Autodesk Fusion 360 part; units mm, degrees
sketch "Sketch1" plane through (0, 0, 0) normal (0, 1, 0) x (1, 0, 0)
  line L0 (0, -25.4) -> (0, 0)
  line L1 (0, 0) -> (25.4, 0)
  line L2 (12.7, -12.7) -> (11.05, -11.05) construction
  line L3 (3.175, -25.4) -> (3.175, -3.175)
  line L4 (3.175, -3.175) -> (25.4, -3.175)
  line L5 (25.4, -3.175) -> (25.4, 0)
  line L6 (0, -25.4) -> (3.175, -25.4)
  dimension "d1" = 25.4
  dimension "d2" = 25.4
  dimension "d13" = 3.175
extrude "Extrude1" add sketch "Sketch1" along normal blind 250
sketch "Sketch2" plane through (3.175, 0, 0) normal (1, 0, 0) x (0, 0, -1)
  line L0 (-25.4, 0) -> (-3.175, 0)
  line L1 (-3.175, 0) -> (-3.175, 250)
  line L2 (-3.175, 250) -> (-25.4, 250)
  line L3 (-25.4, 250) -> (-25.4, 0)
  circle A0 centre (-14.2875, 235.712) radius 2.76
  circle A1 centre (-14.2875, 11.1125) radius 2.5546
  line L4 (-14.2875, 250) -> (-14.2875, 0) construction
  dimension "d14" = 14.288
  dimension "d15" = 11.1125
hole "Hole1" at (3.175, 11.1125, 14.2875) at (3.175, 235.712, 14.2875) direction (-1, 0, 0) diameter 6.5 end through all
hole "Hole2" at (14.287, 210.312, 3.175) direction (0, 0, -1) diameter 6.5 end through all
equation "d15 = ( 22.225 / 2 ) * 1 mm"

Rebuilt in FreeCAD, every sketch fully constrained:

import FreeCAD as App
import Part
import Sketcher

V = App.Vector
Q = App.Units.Quantity


def add_polygon(sketch, points):
    """Adds a closed chain of lines whose ends are joined by coincident constraints."""
    first, n = sketch.GeometryCount, len(points)
    for a, b in zip(points, points[1:] + points[:1]):
        sketch.addGeometry(Part.LineSegment(App.Vector(*a, 0), App.Vector(*b, 0)), False)
    for i in range(n):
        sketch.addConstraint(Sketcher.Constraint("Coincident", first + i, 2, first + (i + 1) % n, 1))

doc = App.newDocument("Part")
params = doc.addObject("Spreadsheet::Sheet", "Params")
for row, (alias, value) in enumerate([
    ("sketch1_width", "1 in"),
    ("sketch1_width2", "0.125 in"),
    ("pad1_length", "250 mm"),
    ("hole_diameter", "0.2559055 in"),
    ("hole2_diameter", "0.2559055 in"),
], start=1):
    params.set(f"A{row}", alias)
    params.set(f"B{row}", "=" + value)
    params.setAlias(f"B{row}", alias)

body = doc.addObject("PartDesign::Body", "Body")

# Sketch on XZ plane
sketch1 = doc.addObject("Sketcher::SketchObject", "Sketch")
body.addObject(sketch1)
sketch1.AttachmentSupport = (doc.XZ_Plane, [""])
sketch1.MapMode = "FlatFace"
add_polygon(sketch1, [(0, 0), (0, 25.4), (3.175, 25.4), (3.175, 3.175), (25.4, 3.175), (25.4, 0)])  # lines 0-5
sketch1.addConstraint(Sketcher.Constraint("Vertical", 0))
sketch1.addConstraint(Sketcher.Constraint("Horizontal", 1))
sketch1.addConstraint(Sketcher.Constraint("Vertical", 2))
sketch1.addConstraint(Sketcher.Constraint("Horizontal", 3))
sketch1.addConstraint(Sketcher.Constraint("Vertical", 4))
sketch1.addConstraint(Sketcher.Constraint("Horizontal", 5))
sketch1.addConstraint(Sketcher.Constraint("Coincident", 5, 2, -1, 1))
sketch1.addConstraint(Sketcher.Constraint("Equal", 5, 0))
sketch1.addConstraint(Sketcher.Constraint("Equal", 3, 2))
sketch1.addConstraint(Sketcher.Constraint("DistanceX", 5, 2, 5, 1, Q("1 in")))
sketch1.addConstraint(Sketcher.Constraint("DistanceX", 1, 1, 1, 2, Q("0.125 in")))
sketch1.setExpression("Constraints[15]", "Params.sketch1_width")
sketch1.setExpression("Constraints[16]", "Params.sketch1_width2")
pad1 = doc.addObject("PartDesign::Pad", "Pad")
body.addObject(pad1)
pad1.Profile = sketch1
pad1.setExpression("Length", "Params.pad1_length")
pad1.Reversed = True

# Sketch on YZ plane
sketch2 = doc.addObject("Sketcher::SketchObject", "Sketch001")
body.addObject(sketch2)
sketch2.AttachmentSupport = (doc.YZ_Plane, [""])
sketch2.MapMode = "FlatFace"
sketch2.AttachmentOffset = App.Placement(V(0, 0, 0.125 * 25.4), App.Rotation())
sketch2.addGeometry(Part.Circle(V(11.1125, 14.2875, 0), V(0, 0, 1), 3.25), False)
sketch2.addGeometry(Part.Circle(V(235.712, 14.2875, 0), V(0, 0, 1), 3.25), False)
sketch2.addConstraint(Sketcher.Constraint("Equal", 0, 1))
sketch2.addConstraint(Sketcher.Constraint("Horizontal", 0, 3, 1, 3))
sketch2.addConstraint(Sketcher.Constraint("Diameter", 0, Q("0.2559 in")))
sketch2.addConstraint(Sketcher.Constraint("DistanceX", -1, 1, 1, 3, Q("9.28 in")))
sketch2.addConstraint(Sketcher.Constraint("DistanceX", -1, 1, 0, 3, Q("0.4375 in")))
sketch2.addConstraint(Sketcher.Constraint("DistanceY", -1, 1, 0, 3, Q("0.5625 in")))
doc.recompute()
hole = doc.addObject("PartDesign::Hole", "Hole")
body.addObject(hole)
hole.Profile = sketch2
hole.ThreadType = "None"
hole.setExpression("Diameter", "Params.hole_diameter")
hole.DepthType = "ThroughAll"

# Sketch on XY plane
sketch3 = doc.addObject("Sketcher::SketchObject", "Sketch002")
body.addObject(sketch3)
sketch3.AttachmentSupport = (doc.XY_Plane, [""])
sketch3.MapMode = "FlatFace"
sketch3.AttachmentOffset = App.Placement(V(0, 0, 0.125 * 25.4), App.Rotation())
sketch3.addGeometry(Part.Circle(V(14.287, 210.312, 0), V(0, 0, 1), 3.25), False)
sketch3.addConstraint(Sketcher.Constraint("Diameter", 0, Q("0.2559 in")))
sketch3.addConstraint(Sketcher.Constraint("DistanceY", -1, 1, 0, 3, Q("8.28 in")))
sketch3.addConstraint(Sketcher.Constraint("DistanceX", -1, 1, 0, 3, Q("14.287 mm")))
doc.recompute()
hole2 = doc.addObject("PartDesign::Hole", "Hole001")
body.addObject(hole2)
hole2.Profile = sketch3
hole2.ThreadType = "None"
hole2.setExpression("Diameter", "Params.hole2_diameter")
hole2.DepthType = "ThroughAll"

doc.recompute()
